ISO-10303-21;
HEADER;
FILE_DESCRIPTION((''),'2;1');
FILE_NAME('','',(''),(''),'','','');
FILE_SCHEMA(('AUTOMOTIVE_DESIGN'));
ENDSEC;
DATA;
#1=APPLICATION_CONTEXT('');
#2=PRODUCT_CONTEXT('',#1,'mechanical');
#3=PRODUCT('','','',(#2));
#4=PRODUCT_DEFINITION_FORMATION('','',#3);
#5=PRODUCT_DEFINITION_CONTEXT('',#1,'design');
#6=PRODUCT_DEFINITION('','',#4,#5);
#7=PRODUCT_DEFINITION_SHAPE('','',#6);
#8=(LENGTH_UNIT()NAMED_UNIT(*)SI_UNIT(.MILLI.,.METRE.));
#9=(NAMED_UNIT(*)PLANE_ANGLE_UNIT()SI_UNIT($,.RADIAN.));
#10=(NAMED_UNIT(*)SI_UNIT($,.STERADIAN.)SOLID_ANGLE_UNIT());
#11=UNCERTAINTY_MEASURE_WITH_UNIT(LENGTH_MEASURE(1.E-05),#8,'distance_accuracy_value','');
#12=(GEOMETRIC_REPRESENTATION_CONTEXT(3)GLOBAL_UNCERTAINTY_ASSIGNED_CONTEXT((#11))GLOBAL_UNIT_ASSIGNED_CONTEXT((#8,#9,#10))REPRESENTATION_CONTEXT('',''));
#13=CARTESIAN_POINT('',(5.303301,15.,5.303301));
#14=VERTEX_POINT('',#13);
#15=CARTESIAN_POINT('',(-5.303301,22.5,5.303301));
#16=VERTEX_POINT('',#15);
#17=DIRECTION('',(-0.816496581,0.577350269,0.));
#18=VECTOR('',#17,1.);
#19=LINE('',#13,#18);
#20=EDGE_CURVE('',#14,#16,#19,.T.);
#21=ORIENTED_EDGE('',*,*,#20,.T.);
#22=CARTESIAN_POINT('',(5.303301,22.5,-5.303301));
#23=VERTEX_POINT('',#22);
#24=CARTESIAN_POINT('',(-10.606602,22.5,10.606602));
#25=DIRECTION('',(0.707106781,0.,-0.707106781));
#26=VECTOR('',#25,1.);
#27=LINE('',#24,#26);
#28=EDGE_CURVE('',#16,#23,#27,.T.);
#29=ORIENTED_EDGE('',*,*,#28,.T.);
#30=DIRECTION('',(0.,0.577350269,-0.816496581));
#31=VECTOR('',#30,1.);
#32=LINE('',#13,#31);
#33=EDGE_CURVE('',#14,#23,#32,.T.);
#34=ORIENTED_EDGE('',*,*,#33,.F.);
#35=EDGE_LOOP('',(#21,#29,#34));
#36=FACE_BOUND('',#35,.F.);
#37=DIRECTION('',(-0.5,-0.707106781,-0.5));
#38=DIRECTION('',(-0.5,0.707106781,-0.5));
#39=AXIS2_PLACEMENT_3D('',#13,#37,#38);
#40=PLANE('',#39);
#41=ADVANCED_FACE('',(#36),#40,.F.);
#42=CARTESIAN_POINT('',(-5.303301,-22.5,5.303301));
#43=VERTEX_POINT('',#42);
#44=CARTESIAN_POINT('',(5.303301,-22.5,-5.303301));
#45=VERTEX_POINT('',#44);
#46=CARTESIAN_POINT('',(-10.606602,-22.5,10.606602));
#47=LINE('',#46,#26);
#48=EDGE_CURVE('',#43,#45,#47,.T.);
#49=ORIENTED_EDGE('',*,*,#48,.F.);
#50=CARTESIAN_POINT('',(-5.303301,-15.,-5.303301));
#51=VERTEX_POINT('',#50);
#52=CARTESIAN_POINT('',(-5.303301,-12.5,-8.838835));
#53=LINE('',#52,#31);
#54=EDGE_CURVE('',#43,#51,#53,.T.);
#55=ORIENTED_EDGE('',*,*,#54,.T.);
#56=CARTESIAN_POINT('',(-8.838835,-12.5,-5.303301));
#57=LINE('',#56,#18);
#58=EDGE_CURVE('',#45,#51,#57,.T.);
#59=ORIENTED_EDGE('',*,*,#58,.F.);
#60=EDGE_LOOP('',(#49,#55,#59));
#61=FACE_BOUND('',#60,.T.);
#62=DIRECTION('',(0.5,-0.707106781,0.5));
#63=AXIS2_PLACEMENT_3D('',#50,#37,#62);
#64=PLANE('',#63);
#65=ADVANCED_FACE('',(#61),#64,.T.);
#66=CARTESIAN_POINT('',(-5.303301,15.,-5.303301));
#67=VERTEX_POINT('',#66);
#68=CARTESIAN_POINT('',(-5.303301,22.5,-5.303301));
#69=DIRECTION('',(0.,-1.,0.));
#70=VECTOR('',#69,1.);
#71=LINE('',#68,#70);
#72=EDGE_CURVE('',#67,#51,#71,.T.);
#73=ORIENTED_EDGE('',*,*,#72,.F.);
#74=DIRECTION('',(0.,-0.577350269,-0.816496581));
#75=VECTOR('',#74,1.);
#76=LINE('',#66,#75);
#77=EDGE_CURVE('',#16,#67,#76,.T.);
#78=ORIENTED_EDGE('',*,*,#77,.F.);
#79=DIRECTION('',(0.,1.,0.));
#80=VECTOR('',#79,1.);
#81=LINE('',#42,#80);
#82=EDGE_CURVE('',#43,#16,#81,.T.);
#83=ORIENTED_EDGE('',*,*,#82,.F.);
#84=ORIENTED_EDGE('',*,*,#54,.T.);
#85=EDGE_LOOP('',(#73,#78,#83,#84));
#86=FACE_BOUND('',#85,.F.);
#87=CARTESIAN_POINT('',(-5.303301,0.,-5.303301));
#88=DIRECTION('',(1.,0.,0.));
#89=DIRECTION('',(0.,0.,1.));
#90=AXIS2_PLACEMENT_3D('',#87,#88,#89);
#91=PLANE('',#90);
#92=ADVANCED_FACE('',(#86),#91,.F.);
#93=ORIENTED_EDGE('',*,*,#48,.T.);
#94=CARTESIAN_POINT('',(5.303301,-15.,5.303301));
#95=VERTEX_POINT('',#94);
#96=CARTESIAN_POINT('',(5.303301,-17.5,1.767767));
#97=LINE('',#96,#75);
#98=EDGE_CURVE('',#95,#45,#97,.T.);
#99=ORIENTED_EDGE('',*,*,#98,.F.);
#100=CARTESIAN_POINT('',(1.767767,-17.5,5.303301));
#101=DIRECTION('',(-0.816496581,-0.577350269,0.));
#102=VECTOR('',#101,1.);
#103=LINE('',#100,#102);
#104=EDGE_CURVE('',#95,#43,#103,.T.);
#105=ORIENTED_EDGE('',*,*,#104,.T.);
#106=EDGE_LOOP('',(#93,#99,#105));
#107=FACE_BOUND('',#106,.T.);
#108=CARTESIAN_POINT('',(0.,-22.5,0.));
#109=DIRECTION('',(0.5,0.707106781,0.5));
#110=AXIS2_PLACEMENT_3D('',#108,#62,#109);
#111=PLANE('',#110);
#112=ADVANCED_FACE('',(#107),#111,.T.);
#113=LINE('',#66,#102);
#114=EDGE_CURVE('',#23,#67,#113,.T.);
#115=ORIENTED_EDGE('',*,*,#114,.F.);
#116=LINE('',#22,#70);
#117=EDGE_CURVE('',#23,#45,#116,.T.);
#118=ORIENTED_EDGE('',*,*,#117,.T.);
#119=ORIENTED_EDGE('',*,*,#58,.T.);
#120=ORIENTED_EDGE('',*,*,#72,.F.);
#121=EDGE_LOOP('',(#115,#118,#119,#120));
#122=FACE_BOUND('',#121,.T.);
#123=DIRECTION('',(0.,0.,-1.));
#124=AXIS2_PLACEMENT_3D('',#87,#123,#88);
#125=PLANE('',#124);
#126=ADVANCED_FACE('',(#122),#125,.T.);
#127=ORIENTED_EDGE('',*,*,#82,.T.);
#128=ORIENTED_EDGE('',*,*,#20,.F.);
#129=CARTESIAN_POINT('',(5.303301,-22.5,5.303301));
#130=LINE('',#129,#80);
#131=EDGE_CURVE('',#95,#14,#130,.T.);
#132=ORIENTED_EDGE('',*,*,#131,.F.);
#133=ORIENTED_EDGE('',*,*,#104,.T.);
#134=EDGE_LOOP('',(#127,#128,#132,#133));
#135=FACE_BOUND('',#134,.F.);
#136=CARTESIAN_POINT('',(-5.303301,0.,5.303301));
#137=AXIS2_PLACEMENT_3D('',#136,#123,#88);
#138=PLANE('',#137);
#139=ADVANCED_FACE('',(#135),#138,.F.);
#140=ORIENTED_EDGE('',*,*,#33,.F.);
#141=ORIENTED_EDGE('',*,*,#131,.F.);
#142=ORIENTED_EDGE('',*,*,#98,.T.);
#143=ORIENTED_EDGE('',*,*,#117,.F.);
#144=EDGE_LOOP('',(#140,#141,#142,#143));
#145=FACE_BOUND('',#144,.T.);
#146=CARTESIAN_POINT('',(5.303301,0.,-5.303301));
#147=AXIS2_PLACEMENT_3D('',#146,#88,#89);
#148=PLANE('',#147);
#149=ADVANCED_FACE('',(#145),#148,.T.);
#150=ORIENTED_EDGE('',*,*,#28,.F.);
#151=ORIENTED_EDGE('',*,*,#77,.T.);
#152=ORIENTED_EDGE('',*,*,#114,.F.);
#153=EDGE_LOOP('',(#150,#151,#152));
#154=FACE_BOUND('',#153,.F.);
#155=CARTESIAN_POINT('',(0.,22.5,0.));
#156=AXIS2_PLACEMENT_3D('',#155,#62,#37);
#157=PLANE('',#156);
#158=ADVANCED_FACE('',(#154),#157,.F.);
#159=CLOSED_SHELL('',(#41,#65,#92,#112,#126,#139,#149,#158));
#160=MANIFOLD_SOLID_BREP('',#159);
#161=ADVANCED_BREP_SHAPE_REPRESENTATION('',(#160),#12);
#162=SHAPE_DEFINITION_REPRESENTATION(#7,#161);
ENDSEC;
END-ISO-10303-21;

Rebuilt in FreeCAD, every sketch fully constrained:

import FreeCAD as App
import Part
import Sketcher
from FreeCAD import Vector
Q = App.Units.Quantity


def add_polygon(sketch, points):
    """Adds a closed chain of lines whose ends are joined by coincident constraints."""
    first, n = sketch.GeometryCount, len(points)
    for a, b in zip(points, points[1:] + points[:1]):
        sketch.addGeometry(Part.LineSegment(App.Vector(*a, 0), App.Vector(*b, 0)), False)
    for i in range(n):
        sketch.addConstraint(Sketcher.Constraint("Coincident", first + i, 2, first + (i + 1) % n, 1))

doc = App.newDocument("Part")
body = doc.addObject("PartDesign::Body", "Body")

# Sketch on XZ plane
sketch1 = doc.addObject("Sketcher::SketchObject", "Sketch")
body.addObject(sketch1)
sketch1.AttachmentSupport = (doc.XZ_Plane, [""])
sketch1.MapMode = "FlatFace"
add_polygon(sketch1, [(-5, 5), (-5, -5), (5, -5), (5, 5)])  # lines 0-3
sketch1.addConstraint(Sketcher.Constraint("Vertical", 0))
sketch1.addConstraint(Sketcher.Constraint("Horizontal", 1))
sketch1.addConstraint(Sketcher.Constraint("Vertical", 2))
sketch1.addConstraint(Sketcher.Constraint("Horizontal", 3))
sketch1.addConstraint(Sketcher.Constraint("Symmetric", 0, 2, 2, 2, -1, 1))
sketch1.addConstraint(Sketcher.Constraint("Equal", 3, 0))
sketch1.addConstraint(Sketcher.Constraint("DistanceX", 1, 1, 1, 2, Q("10.606602 mm")))
pad1 = doc.addObject("PartDesign::Pad", "Pad")
body.addObject(pad1)
pad1.Profile = sketch1
pad1.Length = 45
pad1.Midplane = True

# Sketch on an angled plane
sketch2 = doc.addObject("Sketcher::SketchObject", "Sketch001")
body.addObject(sketch2)
sketch2.Placement = App.Placement(Vector(0, 0, 0), App.Rotation(Vector(0, 1, 0), Vector(0.707106781, 0, 0.707106781), Vector(0.707106781, 0, -0.707106781), "ZXY"))
add_polygon(sketch2, [(-15, -7.5), (-22.5, 0), (-15, 7.5), (-15, 9.5), (-24.5, 9.5), (-24.5, -9.5), (-15, -9.5)])  # lines 0-6
add_polygon(sketch2, [(15, 7.5), (22.5, 0), (15, -7.5), (15, -9.5), (24.5, -9.5), (24.5, 9.5), (15, 9.5)])  # lines 7-13
sketch2.addConstraint(Sketcher.Constraint("Vertical", 2))
sketch2.addConstraint(Sketcher.Constraint("Horizontal", 3))
sketch2.addConstraint(Sketcher.Constraint("Vertical", 4))
sketch2.addConstraint(Sketcher.Constraint("Horizontal", 5))
sketch2.addConstraint(Sketcher.Constraint("Vertical", 6))
sketch2.addConstraint(Sketcher.Constraint("Vertical", 9))
sketch2.addConstraint(Sketcher.Constraint("Horizontal", 10))
sketch2.addConstraint(Sketcher.Constraint("Vertical", 11))
sketch2.addConstraint(Sketcher.Constraint("Horizontal", 12))
sketch2.addConstraint(Sketcher.Constraint("Vertical", 13))
sketch2.addConstraint(Sketcher.Constraint("Symmetric", 0, 2, 7, 2, -1, 1))
sketch2.addConstraint(Sketcher.Constraint("Symmetric", 1, 2, 8, 2, -1, 1))
sketch2.addConstraint(Sketcher.Constraint("Symmetric", 3, 2, 10, 2, -1, 1))
sketch2.addConstraint(Sketcher.Constraint("Symmetric", 5, 2, 12, 2, -1, 1))
sketch2.addConstraint(Sketcher.Constraint("Symmetric", 6, 2, 8, 2, -2))
sketch2.addConstraint(Sketcher.Constraint("PointOnObject", 0, 2, -1))
sketch2.addConstraint(Sketcher.Constraint("Perpendicular", 0, 1))
sketch2.addConstraint(Sketcher.Constraint("Perpendicular", 1, 7))
sketch2.addConstraint(Sketcher.Constraint("Horizontal", 5, 2, 9, 2))
sketch2.addConstraint(Sketcher.Constraint("DistanceY", 2, 1, 2, 2, Q("2 mm")))
sketch2.addConstraint(Sketcher.Constraint("DistanceY", 4, 2, 4, 1, Q("19 mm")))
sketch2.addConstraint(Sketcher.Constraint("DistanceX", 3, 2, 3, 1, Q("9.5 mm")))
sketch2.addConstraint(Sketcher.Constraint("DistanceX", 1, 2, -1, 1, Q("15 mm")))
pocket1 = doc.addObject("PartDesign::Pocket", "Pocket")
body.addObject(pocket1)
pocket1.Profile = sketch2
pocket1.Length = 30
pocket1.Midplane = True

doc.recompute()
